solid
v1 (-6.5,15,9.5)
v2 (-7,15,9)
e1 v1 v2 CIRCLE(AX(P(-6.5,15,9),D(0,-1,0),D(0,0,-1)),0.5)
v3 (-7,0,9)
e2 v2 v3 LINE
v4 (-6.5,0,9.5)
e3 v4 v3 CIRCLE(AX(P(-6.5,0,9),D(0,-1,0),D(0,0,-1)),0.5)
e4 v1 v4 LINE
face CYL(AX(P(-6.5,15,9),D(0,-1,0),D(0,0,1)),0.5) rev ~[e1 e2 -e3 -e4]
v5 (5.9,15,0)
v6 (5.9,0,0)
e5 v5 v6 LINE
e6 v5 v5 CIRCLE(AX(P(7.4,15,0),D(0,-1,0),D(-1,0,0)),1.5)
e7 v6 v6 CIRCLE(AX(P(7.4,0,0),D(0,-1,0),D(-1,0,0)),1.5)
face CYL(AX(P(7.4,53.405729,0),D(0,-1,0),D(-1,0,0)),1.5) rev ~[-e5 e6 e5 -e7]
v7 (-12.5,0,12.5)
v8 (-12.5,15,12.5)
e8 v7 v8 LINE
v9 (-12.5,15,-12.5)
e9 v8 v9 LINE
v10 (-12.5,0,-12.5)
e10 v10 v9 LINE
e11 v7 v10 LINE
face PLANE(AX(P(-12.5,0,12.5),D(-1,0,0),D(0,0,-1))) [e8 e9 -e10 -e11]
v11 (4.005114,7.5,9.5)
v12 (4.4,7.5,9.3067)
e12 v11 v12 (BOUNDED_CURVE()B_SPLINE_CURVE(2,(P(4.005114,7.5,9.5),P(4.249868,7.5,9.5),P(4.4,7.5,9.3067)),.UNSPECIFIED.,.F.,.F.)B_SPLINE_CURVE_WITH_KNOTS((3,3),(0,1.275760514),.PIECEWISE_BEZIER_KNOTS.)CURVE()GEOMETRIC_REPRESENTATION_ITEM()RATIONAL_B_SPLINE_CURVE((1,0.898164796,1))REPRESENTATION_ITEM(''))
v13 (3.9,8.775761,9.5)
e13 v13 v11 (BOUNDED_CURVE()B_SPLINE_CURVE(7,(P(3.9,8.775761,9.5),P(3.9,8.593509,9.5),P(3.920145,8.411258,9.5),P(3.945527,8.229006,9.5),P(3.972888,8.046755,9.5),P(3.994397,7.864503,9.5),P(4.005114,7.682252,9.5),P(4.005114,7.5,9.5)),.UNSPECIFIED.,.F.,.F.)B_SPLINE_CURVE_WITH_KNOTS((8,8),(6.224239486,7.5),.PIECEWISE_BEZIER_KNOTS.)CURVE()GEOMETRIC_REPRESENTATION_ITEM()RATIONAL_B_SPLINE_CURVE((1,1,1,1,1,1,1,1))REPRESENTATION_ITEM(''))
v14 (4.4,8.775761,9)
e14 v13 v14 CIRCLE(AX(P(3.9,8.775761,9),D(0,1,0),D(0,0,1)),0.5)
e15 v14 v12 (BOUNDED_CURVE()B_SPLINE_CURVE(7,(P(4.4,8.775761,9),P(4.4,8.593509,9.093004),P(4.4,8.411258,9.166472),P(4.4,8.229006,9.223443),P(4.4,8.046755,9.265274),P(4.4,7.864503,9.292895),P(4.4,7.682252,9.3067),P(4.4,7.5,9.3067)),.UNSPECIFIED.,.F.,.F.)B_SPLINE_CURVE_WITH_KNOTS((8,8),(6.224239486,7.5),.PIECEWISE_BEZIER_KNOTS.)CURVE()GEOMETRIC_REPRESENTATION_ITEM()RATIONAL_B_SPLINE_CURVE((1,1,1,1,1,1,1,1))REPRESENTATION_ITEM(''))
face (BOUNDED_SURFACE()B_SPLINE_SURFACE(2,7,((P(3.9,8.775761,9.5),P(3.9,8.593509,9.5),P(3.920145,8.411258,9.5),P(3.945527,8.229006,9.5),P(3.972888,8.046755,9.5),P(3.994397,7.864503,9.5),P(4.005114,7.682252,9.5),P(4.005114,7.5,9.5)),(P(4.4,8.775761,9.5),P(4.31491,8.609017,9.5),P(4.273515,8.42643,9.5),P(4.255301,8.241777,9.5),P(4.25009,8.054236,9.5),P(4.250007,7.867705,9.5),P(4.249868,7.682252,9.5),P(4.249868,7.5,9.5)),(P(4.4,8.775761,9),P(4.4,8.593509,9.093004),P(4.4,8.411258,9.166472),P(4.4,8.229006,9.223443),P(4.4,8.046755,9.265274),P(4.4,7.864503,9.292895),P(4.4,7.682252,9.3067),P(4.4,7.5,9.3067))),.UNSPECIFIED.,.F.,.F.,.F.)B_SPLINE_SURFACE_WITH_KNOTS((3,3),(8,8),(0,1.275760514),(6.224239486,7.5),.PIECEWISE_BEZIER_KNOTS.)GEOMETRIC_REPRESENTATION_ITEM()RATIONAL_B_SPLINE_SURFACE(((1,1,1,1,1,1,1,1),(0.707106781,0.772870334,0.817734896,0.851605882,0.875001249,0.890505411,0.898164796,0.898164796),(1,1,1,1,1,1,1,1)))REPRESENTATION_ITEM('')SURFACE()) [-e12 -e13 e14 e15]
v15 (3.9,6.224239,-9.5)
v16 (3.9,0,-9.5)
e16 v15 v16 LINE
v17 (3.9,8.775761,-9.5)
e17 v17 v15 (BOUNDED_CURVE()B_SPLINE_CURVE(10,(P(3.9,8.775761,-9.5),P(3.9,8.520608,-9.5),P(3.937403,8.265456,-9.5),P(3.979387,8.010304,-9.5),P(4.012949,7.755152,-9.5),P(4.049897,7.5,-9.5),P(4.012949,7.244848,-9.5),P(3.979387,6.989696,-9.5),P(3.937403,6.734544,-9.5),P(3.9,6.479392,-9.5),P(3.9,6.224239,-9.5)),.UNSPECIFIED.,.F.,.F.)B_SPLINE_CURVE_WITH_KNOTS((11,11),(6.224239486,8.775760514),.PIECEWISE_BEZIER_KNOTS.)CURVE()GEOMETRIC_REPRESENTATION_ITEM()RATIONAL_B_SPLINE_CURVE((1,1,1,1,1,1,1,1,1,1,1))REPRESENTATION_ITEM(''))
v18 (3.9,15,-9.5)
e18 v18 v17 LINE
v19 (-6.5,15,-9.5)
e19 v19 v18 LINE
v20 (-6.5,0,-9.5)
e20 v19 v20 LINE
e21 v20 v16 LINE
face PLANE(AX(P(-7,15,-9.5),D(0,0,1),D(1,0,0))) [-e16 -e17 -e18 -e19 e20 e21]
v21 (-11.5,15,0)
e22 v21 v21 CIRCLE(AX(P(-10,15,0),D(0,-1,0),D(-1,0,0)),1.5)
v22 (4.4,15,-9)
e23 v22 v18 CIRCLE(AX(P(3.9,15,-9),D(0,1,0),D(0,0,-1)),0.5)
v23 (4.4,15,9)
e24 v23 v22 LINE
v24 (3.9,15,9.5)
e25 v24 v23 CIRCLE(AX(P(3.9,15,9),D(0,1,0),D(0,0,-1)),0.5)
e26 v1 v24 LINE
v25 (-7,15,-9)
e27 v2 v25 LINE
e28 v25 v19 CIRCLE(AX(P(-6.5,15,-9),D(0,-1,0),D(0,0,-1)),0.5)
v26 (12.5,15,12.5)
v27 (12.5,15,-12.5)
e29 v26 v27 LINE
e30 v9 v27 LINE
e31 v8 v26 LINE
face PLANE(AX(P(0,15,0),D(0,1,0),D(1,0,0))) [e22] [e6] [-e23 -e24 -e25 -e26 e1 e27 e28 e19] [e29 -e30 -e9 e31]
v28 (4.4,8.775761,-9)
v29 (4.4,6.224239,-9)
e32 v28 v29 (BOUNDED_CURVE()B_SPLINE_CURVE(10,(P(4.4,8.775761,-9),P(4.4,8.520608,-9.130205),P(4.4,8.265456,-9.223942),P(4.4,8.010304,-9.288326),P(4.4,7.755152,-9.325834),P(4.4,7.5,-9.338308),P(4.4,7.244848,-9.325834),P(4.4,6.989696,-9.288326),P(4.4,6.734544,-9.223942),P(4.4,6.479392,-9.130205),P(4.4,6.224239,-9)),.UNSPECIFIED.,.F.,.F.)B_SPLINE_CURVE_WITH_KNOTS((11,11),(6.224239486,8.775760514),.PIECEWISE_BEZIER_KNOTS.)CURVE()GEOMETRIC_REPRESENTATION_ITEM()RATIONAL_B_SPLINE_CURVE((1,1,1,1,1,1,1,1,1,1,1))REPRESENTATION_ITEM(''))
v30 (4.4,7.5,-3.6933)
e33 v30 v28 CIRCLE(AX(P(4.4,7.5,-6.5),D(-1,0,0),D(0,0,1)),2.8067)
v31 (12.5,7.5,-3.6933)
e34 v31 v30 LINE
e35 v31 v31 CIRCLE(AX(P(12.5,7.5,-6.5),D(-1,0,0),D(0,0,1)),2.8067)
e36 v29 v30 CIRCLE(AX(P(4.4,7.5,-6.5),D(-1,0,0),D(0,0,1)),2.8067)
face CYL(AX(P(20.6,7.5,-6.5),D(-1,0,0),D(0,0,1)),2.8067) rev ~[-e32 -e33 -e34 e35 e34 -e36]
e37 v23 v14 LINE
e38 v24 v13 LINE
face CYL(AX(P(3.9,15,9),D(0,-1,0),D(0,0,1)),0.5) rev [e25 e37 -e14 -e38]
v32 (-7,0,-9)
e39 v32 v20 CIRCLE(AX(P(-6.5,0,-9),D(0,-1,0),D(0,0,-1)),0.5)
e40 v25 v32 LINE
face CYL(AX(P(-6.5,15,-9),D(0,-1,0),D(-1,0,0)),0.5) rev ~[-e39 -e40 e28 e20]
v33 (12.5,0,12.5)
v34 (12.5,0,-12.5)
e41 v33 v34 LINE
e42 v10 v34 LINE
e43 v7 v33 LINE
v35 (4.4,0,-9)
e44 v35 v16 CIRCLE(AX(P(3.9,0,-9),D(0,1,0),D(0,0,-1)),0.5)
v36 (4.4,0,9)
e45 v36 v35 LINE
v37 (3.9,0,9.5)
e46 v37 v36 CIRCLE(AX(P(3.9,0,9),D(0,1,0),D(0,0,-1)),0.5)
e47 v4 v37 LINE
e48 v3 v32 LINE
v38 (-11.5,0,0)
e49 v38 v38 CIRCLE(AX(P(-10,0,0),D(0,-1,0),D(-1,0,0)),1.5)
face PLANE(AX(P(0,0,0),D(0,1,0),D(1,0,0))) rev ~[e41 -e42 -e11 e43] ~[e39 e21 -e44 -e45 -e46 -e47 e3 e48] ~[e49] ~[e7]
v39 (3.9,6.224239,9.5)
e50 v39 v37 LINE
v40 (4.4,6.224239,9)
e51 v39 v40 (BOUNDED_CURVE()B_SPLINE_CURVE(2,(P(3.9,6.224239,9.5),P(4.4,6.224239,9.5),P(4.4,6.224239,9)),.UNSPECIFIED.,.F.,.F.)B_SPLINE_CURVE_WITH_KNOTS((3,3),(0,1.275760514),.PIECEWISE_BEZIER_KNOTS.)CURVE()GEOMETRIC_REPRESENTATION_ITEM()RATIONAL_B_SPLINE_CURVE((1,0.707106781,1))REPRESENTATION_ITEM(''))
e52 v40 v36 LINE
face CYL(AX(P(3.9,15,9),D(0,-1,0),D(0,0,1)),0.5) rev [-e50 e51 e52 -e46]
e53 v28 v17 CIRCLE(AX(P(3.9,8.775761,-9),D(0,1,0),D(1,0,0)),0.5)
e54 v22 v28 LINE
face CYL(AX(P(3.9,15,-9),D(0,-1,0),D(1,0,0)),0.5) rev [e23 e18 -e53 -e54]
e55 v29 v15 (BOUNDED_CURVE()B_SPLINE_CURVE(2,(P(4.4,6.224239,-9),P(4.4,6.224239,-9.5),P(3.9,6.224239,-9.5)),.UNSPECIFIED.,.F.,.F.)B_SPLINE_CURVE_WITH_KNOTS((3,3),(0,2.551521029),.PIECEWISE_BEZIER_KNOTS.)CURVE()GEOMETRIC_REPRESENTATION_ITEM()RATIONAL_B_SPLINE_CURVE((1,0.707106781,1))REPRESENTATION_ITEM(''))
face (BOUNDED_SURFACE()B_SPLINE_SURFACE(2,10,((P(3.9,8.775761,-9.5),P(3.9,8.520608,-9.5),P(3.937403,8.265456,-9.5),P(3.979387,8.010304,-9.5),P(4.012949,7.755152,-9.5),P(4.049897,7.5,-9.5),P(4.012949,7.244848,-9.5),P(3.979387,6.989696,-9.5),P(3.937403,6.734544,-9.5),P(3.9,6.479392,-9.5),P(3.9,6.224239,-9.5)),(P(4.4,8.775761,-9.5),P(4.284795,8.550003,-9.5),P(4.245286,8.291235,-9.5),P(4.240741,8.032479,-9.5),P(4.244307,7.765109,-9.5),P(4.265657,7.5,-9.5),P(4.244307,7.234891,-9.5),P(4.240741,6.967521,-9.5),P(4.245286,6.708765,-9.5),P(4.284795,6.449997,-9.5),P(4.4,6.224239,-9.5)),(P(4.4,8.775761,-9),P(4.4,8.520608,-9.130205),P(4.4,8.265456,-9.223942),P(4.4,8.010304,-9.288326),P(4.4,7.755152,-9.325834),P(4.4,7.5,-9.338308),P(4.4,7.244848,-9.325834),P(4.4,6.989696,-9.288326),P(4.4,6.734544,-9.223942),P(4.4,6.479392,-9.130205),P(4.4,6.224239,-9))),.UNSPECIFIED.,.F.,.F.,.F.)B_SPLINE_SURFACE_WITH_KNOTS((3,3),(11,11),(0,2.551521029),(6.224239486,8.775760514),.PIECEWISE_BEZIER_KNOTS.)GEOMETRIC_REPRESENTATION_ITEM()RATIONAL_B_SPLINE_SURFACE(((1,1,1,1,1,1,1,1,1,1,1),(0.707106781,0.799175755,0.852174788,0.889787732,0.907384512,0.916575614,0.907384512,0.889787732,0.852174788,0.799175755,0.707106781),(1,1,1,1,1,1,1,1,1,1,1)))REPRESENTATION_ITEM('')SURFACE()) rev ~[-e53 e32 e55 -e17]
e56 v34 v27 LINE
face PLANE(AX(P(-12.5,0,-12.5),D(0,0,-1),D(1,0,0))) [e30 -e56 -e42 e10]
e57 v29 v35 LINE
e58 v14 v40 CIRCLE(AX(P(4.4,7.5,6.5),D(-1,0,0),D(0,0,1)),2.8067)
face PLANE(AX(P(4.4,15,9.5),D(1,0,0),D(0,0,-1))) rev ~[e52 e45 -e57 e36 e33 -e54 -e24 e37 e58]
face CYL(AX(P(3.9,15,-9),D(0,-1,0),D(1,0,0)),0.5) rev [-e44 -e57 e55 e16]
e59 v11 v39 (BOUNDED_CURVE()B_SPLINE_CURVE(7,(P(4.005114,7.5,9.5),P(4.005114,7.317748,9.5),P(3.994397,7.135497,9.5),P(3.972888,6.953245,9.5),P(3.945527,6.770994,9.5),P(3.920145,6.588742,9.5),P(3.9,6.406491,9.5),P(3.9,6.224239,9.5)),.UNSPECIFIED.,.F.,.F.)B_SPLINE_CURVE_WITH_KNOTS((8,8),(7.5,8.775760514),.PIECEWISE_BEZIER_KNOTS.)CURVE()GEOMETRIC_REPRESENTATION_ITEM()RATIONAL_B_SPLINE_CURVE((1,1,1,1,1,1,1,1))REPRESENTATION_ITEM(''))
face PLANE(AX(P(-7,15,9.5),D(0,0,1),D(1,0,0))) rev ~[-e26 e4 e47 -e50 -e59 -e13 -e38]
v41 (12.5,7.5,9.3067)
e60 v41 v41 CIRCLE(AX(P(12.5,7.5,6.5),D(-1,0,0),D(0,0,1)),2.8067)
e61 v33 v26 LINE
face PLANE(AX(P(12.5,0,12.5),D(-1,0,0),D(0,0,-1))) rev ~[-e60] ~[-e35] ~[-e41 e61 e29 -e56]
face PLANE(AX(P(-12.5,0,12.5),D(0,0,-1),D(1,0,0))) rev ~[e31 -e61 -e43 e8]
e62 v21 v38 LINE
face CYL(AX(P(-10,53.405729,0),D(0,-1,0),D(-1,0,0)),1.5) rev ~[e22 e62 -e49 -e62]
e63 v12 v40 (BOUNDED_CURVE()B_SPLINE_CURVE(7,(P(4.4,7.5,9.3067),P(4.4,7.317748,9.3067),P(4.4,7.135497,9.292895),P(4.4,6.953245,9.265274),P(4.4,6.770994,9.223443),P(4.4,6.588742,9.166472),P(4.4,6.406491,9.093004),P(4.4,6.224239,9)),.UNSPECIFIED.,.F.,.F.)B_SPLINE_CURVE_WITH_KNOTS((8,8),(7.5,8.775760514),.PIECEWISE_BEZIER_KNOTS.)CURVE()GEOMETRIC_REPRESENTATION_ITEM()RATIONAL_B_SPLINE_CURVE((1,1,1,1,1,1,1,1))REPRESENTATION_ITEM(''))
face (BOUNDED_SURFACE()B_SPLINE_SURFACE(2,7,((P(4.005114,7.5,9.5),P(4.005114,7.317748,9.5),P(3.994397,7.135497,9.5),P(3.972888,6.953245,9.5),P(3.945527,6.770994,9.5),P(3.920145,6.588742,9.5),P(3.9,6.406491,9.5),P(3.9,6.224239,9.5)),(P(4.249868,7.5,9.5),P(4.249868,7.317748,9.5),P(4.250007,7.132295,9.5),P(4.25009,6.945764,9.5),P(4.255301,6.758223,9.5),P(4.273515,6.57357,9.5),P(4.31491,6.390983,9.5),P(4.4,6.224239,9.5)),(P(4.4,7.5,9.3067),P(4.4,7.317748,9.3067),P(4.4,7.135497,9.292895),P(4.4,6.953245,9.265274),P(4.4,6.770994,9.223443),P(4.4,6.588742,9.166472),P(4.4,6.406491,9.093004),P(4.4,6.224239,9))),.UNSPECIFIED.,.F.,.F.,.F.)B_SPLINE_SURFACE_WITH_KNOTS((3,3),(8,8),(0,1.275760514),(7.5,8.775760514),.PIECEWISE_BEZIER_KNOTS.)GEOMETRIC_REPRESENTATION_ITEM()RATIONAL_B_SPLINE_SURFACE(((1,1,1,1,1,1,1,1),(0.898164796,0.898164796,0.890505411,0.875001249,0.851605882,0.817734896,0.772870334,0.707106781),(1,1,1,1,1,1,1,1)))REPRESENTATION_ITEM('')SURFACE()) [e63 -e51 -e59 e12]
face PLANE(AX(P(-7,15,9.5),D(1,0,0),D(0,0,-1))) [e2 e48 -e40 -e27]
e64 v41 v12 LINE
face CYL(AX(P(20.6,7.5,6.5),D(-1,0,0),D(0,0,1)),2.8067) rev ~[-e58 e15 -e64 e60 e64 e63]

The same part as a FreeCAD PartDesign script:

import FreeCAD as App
import Part
import Sketcher

V = App.Vector


def edges_at(feature, points):
    """Names of the edges that pass closest to the given points."""
    edges = feature.Shape.Edges
    near = lambda p: min(range(len(edges)), key=lambda i: edges[i].distToShape(Part.Vertex(*p))[0])
    return sorted({f"Edge{near(p) + 1}" for p in points})

doc = App.newDocument("Part")
body = doc.addObject("PartDesign::Body", "Body")

sketch1 = body.newObject("Sketcher::SketchObject", "Sketch")
sketch1.AttachmentSupport = (doc.getObject("XZ_Plane"), [""])
sketch1.MapMode = "FlatFace"
sketch1.addGeometry(Part.LineSegment(V(-12.5, -12.5, 0), V(-12.5, 12.5, 0)), False)
sketch1.addGeometry(Part.LineSegment(V(-12.5, 12.5, 0), V(12.5, 12.5, 0)), False)
sketch1.addGeometry(Part.LineSegment(V(12.5, 12.5, 0), V(12.5, -12.5, 0)), False)
sketch1.addGeometry(Part.LineSegment(V(12.5, -12.5, 0), V(-12.5, -12.5, 0)), False)
sketch1.addConstraint(Sketcher.Constraint("Coincident", 0, 2, 1, 1))
sketch1.addConstraint(Sketcher.Constraint("Coincident", 1, 2, 2, 1))
sketch1.addConstraint(Sketcher.Constraint("Coincident", 2, 2, 3, 1))
sketch1.addConstraint(Sketcher.Constraint("Coincident", 3, 2, 0, 1))
sketch1.addConstraint(Sketcher.Constraint("Vertical", 0))
sketch1.addConstraint(Sketcher.Constraint("Horizontal", 1))
sketch1.addConstraint(Sketcher.Constraint("Vertical", 2))
sketch1.addConstraint(Sketcher.Constraint("Horizontal", 3))
sketch1.addConstraint(Sketcher.Constraint("Symmetric", 0, 2, 2, 2, -1, 1))
sketch1.addConstraint(Sketcher.Constraint("Equal", 3, 0))
sketch1.addConstraint(Sketcher.Constraint("DistanceX", 1, 1, 1, 2, 25.0))
pad1 = body.newObject("PartDesign::Pad", "Pad")
pad1.Profile = sketch1
pad1.Length = 15
pad1.Reversed = True

sketch2 = body.newObject("Sketcher::SketchObject", "Sketch001")
sketch2.AttachmentSupport = (doc.getObject("XZ_Plane"), [""])
sketch2.MapMode = "FlatFace"
sketch2.AttachmentOffset = App.Placement(V(0, 0, -15), App.Rotation())
sketch2.addGeometry(Part.LineSegment(V(-7, -9.5, 0), V(-7, 9.5, 0)), False)
sketch2.addGeometry(Part.LineSegment(V(-7, 9.5, 0), V(4.4, 9.5, 0)), False)
sketch2.addGeometry(Part.LineSegment(V(4.4, 9.5, 0), V(4.4, -9.5, 0)), False)
sketch2.addGeometry(Part.LineSegment(V(4.4, -9.5, 0), V(-7, -9.5, 0)), False)
sketch2.addConstraint(Sketcher.Constraint("Coincident", 0, 2, 1, 1))
sketch2.addConstraint(Sketcher.Constraint("Coincident", 1, 2, 2, 1))
sketch2.addConstraint(Sketcher.Constraint("Coincident", 2, 2, 3, 1))
sketch2.addConstraint(Sketcher.Constraint("Coincident", 3, 2, 0, 1))
sketch2.addConstraint(Sketcher.Constraint("Vertical", 0))
sketch2.addConstraint(Sketcher.Constraint("Horizontal", 1))
sketch2.addConstraint(Sketcher.Constraint("Vertical", 2))
sketch2.addConstraint(Sketcher.Constraint("Horizontal", 3))
sketch2.addConstraint(Sketcher.Constraint("DistanceY", 0, 1, 0, 2, 19.0))
sketch2.addConstraint(Sketcher.Constraint("DistanceX", 1, 1, 1, 2, 11.4))
sketch2.addConstraint(Sketcher.Constraint("DistanceX", 0, 2, -1, 1, 7.0))
sketch2.addConstraint(Sketcher.Constraint("DistanceY", -1, 1, 0, 2, 9.5))
pocket1 = body.newObject("PartDesign::Pocket", "Pocket")
pocket1.Profile = sketch2
pocket1.Type = "ThroughAll"
pocket1.Reversed = True

sketch3 = body.newObject("Sketcher::SketchObject", "Sketch002")
sketch3.AttachmentSupport = (doc.getObject("XZ_Plane"), [""])
sketch3.MapMode = "FlatFace"
sketch3.AttachmentOffset = App.Placement(V(0, 0, -15), App.Rotation())
sketch3.addGeometry(Part.Circle(V(-10, 0, 0), V(0, 0, 1), 1.5), False)
sketch3.addGeometry(Part.Circle(V(7.4, 0, 0), V(0, 0, 1), 1.5), False)
sketch3.addConstraint(Sketcher.Constraint("Equal", 0, 1))
sketch3.addConstraint(Sketcher.Constraint("PointOnObject", 0, 3, -1))
sketch3.addConstraint(Sketcher.Constraint("PointOnObject", 1, 3, -1))
sketch3.addConstraint(Sketcher.Constraint("Diameter", 0, 3.0))
sketch3.addConstraint(Sketcher.Constraint("DistanceX", 0, 3, -1, 1, 10.0))
sketch3.addConstraint(Sketcher.Constraint("DistanceX", -1, 1, 1, 3, 7.4))
doc.recompute()
hole = body.newObject("PartDesign::Hole", "Hole")
hole.Profile = sketch3
hole.ThreadType = "None"
hole.Diameter = 3
hole.DepthType = "ThroughAll"
hole.Reversed = True

sketch4 = body.newObject("Sketcher::SketchObject", "Sketch003")
sketch4.AttachmentSupport = (doc.getObject("YZ_Plane"), [""])
sketch4.MapMode = "FlatFace"
sketch4.AttachmentOffset = App.Placement(V(0, 0, 12.5), App.Rotation())
sketch4.addGeometry(Part.Circle(V(7.5, 6.5, 0), V(0, 0, 1), 2.8067), False)
sketch4.addGeometry(Part.Circle(V(7.5, -6.5, 0), V(0, 0, 1), 2.8067), False)
sketch4.addConstraint(Sketcher.Constraint("Equal", 0, 1))
sketch4.addConstraint(Sketcher.Constraint("Symmetric", 0, 3, 1, 3, -1))
sketch4.addConstraint(Sketcher.Constraint("DistanceY", 1, 3, 0, 3, 13.0))
sketch4.addConstraint(Sketcher.Constraint("Diameter", 0, 5.6134))
sketch4.addConstraint(Sketcher.Constraint("DistanceX", -1, 1, 0, 3, 7.5))
doc.recompute()
hole2 = body.newObject("PartDesign::Hole", "Hole001")
hole2.Profile = sketch4
hole2.ThreadType = "None"
hole2.Diameter = 5.6134
hole2.DepthType = "Dimension"
hole2.Depth = 8.1
hole2.DrillPoint = "Flat"
doc.recompute()

fillet = body.newObject("PartDesign::Fillet", "Fillet")
fillet.Base = (hole2, edges_at(hole2, [
    (-7, 7.5, 9.5),
    (-7, 7.5, -9.5),
    (4.4, 7.5, -9.5),
    (4.4, 7.5, 9.5),
]))
fillet.Radius = 0.5

doc.recompute()
